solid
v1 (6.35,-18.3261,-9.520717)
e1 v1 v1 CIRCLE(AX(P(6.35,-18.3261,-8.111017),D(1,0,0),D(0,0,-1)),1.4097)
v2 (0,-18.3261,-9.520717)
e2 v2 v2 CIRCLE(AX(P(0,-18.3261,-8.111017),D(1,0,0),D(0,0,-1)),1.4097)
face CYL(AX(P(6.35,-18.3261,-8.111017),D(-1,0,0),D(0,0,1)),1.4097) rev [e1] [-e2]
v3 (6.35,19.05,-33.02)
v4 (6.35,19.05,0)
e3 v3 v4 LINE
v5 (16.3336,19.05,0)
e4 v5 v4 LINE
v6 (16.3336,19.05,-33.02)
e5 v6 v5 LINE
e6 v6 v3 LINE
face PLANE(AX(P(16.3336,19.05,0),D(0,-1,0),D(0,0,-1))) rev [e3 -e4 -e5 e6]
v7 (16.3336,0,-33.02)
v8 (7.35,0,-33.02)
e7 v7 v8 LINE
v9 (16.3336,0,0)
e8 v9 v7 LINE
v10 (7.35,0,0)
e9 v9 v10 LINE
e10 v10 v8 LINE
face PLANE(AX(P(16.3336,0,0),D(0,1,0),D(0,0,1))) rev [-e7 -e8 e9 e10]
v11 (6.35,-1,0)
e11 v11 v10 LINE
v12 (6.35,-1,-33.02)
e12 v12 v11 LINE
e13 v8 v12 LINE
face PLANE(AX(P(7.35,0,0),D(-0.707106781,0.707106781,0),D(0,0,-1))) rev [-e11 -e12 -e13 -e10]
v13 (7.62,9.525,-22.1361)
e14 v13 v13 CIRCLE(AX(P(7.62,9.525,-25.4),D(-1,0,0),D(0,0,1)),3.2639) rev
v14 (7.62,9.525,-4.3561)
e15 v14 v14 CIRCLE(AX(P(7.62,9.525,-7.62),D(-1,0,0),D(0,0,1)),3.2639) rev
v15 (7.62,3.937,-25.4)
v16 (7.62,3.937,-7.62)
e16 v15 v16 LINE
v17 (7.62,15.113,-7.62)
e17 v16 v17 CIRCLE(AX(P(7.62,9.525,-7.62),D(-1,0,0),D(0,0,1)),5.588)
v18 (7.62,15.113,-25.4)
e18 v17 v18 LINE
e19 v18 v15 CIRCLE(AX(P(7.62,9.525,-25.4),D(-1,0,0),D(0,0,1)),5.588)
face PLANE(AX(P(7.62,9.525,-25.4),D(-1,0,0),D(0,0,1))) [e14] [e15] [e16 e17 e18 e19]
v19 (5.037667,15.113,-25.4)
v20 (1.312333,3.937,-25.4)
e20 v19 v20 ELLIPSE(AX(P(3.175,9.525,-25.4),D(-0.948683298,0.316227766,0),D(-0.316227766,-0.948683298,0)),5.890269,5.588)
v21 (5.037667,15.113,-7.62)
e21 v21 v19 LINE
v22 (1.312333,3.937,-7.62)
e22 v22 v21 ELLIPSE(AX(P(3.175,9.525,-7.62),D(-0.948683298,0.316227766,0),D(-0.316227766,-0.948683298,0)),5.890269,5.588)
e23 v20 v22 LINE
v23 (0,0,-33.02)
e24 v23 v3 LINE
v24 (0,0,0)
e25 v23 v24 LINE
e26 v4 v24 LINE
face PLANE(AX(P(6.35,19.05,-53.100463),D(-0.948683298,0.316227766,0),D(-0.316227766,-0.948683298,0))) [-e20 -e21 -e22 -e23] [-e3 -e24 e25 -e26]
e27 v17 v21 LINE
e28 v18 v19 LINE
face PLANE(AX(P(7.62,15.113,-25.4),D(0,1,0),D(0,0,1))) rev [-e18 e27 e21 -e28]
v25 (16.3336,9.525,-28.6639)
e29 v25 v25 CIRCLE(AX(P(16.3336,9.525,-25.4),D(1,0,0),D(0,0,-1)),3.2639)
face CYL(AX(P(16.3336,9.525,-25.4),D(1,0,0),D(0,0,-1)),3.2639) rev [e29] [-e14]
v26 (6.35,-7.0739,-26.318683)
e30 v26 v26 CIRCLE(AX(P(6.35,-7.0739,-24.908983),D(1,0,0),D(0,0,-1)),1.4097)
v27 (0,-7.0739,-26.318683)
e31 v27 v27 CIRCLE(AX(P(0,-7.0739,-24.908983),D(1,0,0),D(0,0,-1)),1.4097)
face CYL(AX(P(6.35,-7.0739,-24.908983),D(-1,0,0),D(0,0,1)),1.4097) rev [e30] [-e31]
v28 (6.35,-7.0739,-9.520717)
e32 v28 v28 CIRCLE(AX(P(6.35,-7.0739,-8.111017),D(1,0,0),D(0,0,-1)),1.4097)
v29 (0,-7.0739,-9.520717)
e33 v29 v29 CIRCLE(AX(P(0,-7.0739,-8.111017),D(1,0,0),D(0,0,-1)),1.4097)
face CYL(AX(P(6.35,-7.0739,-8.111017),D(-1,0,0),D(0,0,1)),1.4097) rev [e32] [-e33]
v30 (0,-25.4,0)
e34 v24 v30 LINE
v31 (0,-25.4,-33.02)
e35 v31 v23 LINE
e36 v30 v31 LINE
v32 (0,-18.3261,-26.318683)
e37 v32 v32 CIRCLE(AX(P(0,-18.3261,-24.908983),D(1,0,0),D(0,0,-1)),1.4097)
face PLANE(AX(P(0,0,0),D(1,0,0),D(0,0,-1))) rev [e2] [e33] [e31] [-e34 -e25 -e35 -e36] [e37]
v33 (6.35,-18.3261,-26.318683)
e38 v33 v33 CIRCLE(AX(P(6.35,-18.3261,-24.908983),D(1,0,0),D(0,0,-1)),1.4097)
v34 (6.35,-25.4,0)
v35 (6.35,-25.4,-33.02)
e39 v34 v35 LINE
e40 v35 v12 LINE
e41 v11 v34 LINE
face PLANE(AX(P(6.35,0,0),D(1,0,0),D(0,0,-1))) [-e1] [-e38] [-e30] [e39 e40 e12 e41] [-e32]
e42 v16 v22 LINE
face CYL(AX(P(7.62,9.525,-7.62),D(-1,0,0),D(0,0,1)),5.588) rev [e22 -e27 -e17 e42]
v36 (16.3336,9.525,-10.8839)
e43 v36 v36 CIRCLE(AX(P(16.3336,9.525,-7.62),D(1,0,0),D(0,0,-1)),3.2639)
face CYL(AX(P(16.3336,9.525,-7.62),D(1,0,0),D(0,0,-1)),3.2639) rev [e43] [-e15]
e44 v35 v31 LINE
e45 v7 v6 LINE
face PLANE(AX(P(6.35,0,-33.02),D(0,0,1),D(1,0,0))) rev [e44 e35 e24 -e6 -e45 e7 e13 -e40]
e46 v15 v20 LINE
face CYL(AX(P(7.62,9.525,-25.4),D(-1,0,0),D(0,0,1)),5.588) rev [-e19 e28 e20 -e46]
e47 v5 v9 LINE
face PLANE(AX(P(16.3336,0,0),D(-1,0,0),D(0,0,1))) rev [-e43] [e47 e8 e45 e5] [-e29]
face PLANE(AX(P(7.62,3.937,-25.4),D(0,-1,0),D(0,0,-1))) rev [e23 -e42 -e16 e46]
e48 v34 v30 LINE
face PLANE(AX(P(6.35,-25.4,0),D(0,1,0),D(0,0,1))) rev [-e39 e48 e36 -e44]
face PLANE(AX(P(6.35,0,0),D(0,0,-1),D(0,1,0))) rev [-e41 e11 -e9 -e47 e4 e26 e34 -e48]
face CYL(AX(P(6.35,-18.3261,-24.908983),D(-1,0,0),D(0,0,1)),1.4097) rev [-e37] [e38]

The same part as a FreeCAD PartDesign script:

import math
import FreeCAD as App
import Part
import Sketcher
from FreeCAD import Vector
Q = App.Units.Quantity


def edges_at(feature, points):
    """Names of the edges that pass closest to the given points."""
    edges = feature.Shape.Edges
    near = lambda p: min(range(len(edges)), key=lambda i: edges[i].distToShape(Part.Vertex(*p))[0])
    return sorted({f"Edge{near(p) + 1}" for p in points})

doc = App.newDocument("Part")
body = doc.addObject("PartDesign::Body", "Body")

sketch1 = body.newObject("Sketcher::SketchObject", "Sketch")
sketch1.AttachmentSupport = (doc.getObject("YZ_Plane"), [""])
sketch1.MapMode = "FlatFace"
sketch1.addGeometry(Part.LineSegment(Vector(0, 0, 0), Vector(-25.4, 0, 0)), False)
sketch1.addGeometry(Part.LineSegment(Vector(-25.4, 0, 0), Vector(-25.4, -33.02, 0)), False)
sketch1.addGeometry(Part.LineSegment(Vector(-25.4, -33.02, 0), Vector(0, -33.02, 0)), False)
sketch1.addGeometry(Part.LineSegment(Vector(0, -33.02, 0), Vector(0, 0, 0)), False)
sketch1.addGeometry(Part.Circle(Vector(-18.3261, -8.111017, 0), Vector(0, 0, 1), 1.4097), False)
sketch1.addGeometry(Part.Circle(Vector(-18.3261, -24.908983, 0), Vector(0, 0, 1), 1.4097), False)
sketch1.addGeometry(Part.Circle(Vector(-7.0739, -8.111017, 0), Vector(0, 0, 1), 1.4097), False)
sketch1.addGeometry(Part.Circle(Vector(-7.0739, -24.908983, 0), Vector(0, 0, 1), 1.4097), False)
sketch1.addConstraint(Sketcher.Constraint("Coincident", 0, 2, 1, 1))
sketch1.addConstraint(Sketcher.Constraint("Coincident", 1, 2, 2, 1))
sketch1.addConstraint(Sketcher.Constraint("Coincident", 2, 2, 3, 1))
sketch1.addConstraint(Sketcher.Constraint("Coincident", 3, 2, 0, 1))
sketch1.addConstraint(Sketcher.Constraint("Horizontal", 0))
sketch1.addConstraint(Sketcher.Constraint("Vertical", 1))
sketch1.addConstraint(Sketcher.Constraint("Horizontal", 2))
sketch1.addConstraint(Sketcher.Constraint("Vertical", 3))
sketch1.addConstraint(Sketcher.Constraint("Coincident", 3, 2, -1, 1))
sketch1.addConstraint(Sketcher.Constraint("Equal", 4, 5))
sketch1.addConstraint(Sketcher.Constraint("Equal", 5, 6))
sketch1.addConstraint(Sketcher.Constraint("Equal", 6, 7))
sketch1.addConstraint(Sketcher.Constraint("Horizontal", 4, 3, 6, 3))
sketch1.addConstraint(Sketcher.Constraint("Horizontal", 5, 3, 7, 3))
sketch1.addConstraint(Sketcher.Constraint("Vertical", 4, 3, 5, 3))
sketch1.addConstraint(Sketcher.Constraint("Vertical", 6, 3, 7, 3))
sketch1.addConstraint(Sketcher.Constraint("DistanceX", 0, 2, 0, 1, Q("1 in")))
sketch1.addConstraint(Sketcher.Constraint("Diameter", 4, Q("0.111 in")))
sketch1.addConstraint(Sketcher.Constraint("DistanceY", 1, 2, 1, 1, Q("1.3 in")))
sketch1.addConstraint(Sketcher.Constraint("DistanceX", 4, 3, 6, 3, Q("0.443 in")))
sketch1.addConstraint(Sketcher.Constraint("DistanceX", 4, 3, -1, 1, Q("0.7215 in")))
sketch1.addConstraint(Sketcher.Constraint("DistanceY", 4, 3, -1, 1, 8.111017))
sketch1.addConstraint(Sketcher.Constraint("DistanceY", 5, 3, -1, 1, 24.908983))
pad1 = body.newObject("PartDesign::Pad", "Pad")
pad1.Profile = sketch1
pad1.Length = Q("0.25 in")
body2 = doc.addObject("PartDesign::Body", "Body001")

sketch2 = body2.newObject("Sketcher::SketchObject", "Sketch001")
sketch2.AttachmentSupport = (doc.getObject("YZ_Plane001"), [""])
sketch2.MapMode = "FlatFace"
sketch2.AttachmentOffset = App.Placement(Vector(0, 0, 0.25 * 25.4), App.Rotation())
sketch2.addGeometry(Part.LineSegment(Vector(19.05, 0, 0), Vector(0, 0, 0)), False)
sketch2.addGeometry(Part.LineSegment(Vector(0, 0, 0), Vector(0, -33.02, 0)), False)
sketch2.addGeometry(Part.LineSegment(Vector(0, -33.02, 0), Vector(19.05, -33.02, 0)), False)
sketch2.addGeometry(Part.LineSegment(Vector(19.05, -33.02, 0), Vector(19.05, 0, 0)), False)
sketch2.addConstraint(Sketcher.Constraint("Coincident", 0, 2, 1, 1))
sketch2.addConstraint(Sketcher.Constraint("Coincident", 1, 2, 2, 1))
sketch2.addConstraint(Sketcher.Constraint("Coincident", 2, 2, 3, 1))
sketch2.addConstraint(Sketcher.Constraint("Coincident", 3, 2, 0, 1))
sketch2.addConstraint(Sketcher.Constraint("Horizontal", 0))
sketch2.addConstraint(Sketcher.Constraint("Vertical", 1))
sketch2.addConstraint(Sketcher.Constraint("Horizontal", 2))
sketch2.addConstraint(Sketcher.Constraint("Vertical", 3))
sketch2.addConstraint(Sketcher.Constraint("Coincident", 0, 2, -1, 1))
sketch2.addConstraint(Sketcher.Constraint("DistanceY", 1, 2, 1, 1, Q("1.3 in")))
sketch2.addConstraint(Sketcher.Constraint("DistanceX", 0, 2, 0, 1, Q("0.75 in")))
pad2 = body2.newObject("PartDesign::Pad", "Pad001")
pad2.Profile = sketch2
pad2.Length = 9.9836
body.AllowCompound = True
doc.recompute()

boolean = body.newObject("PartDesign::Boolean", "Boolean")
boolean.Type = "Fuse"
boolean.addObjects([body2])

sketch3 = body.newObject("Sketcher::SketchObject", "Sketch002")
sketch3.AttachmentSupport = (doc.getObject("XY_Plane"), [""])
sketch3.MapMode = "FlatFace"
sketch3.addGeometry(Part.LineSegment(Vector(6.35, 19.05, 0), Vector(0, 0, 0)), False)
sketch3.addGeometry(Part.LineSegment(Vector(0, 0, 0), Vector(6.35, 0, 0)), False)
sketch3.addGeometry(Part.LineSegment(Vector(6.35, 0, 0), Vector(6.35, 19.05, 0)), False)
sketch3.addConstraint(Sketcher.Constraint("Coincident", 0, 2, 1, 1))
sketch3.addConstraint(Sketcher.Constraint("Coincident", 1, 2, 2, 1))
sketch3.addConstraint(Sketcher.Constraint("Coincident", 2, 2, 0, 1))
sketch3.addConstraint(Sketcher.Constraint("Horizontal", 1))
sketch3.addConstraint(Sketcher.Constraint("Vertical", 2))
sketch3.addConstraint(Sketcher.Constraint("Coincident", 0, 2, -1, 1))
sketch3.addConstraint(Sketcher.Constraint("DistanceX", 1, 1, 1, 2, Q("0.25 in")))
sketch3.addConstraint(Sketcher.Constraint("DistanceY", 2, 1, 2, 2, Q("0.75 in")))
pad3 = body.newObject("PartDesign::Pad", "Pad002")
pad3.Profile = sketch3
pad3.Length = Q("1.3 in")
pad3.Reversed = True

sketch4 = body.newObject("Sketcher::SketchObject", "Sketch003")
sketch4.AttachmentSupport = (doc.getObject("YZ_Plane"), [""])
sketch4.MapMode = "FlatFace"
sketch4.AttachmentOffset = App.Placement(Vector(0, 0, 16.3336), App.Rotation())
sketch4.addGeometry(Part.Circle(Vector(9.525, -7.62, 0), Vector(0, 0, 1), 3.2639), False)
sketch4.addGeometry(Part.Circle(Vector(9.525, -25.4, 0), Vector(0, 0, 1), 3.2639), False)
sketch4.addConstraint(Sketcher.Constraint("Equal", 0, 1))
sketch4.addConstraint(Sketcher.Constraint("Vertical", 0, 3, 1, 3))
sketch4.addConstraint(Sketcher.Constraint("Diameter", 0, Q("0.257 in")))
sketch4.addConstraint(Sketcher.Constraint("DistanceY", 1, 3, -1, 1, Q("1 in")))
sketch4.addConstraint(Sketcher.Constraint("DistanceY", 0, 3, -1, 1, Q("0.3 in")))
sketch4.addConstraint(Sketcher.Constraint("DistanceX", -1, 1, 0, 3, Q("0.375 in")))
doc.recompute()
hole = body.newObject("PartDesign::Hole", "Hole")
hole.Profile = sketch4
hole.ThreadType = "None"
hole.Diameter = Q("0.257 in")
hole.DepthType = "ThroughAll"

sketch5 = body.newObject("Sketcher::SketchObject", "Sketch004")
sketch5.AttachmentSupport = (doc.getObject("YZ_Plane"), [""])
sketch5.MapMode = "FlatFace"
sketch5.addGeometry(Part.LineSegment(Vector(15.113, -7.62, 0), Vector(15.113, -25.4, 0)), False)
sketch5.addGeometry(Part.ArcOfCircle(Part.Circle(Vector(9.525, -25.4, 0), Vector(0, 0, 1), 5.588), math.radians(180), math.radians(360)), False)
sketch5.addGeometry(Part.LineSegment(Vector(3.937, -25.4, 0), Vector(3.937, -7.62, 0)), False)
sketch5.addGeometry(Part.ArcOfCircle(Part.Circle(Vector(9.525, -7.62, 0), Vector(0, 0, 1), 5.588), math.radians(0), math.radians(180)), False)
sketch5.addConstraint(Sketcher.Constraint("Tangent", 0, 2, 1, 2))
sketch5.addConstraint(Sketcher.Constraint("Tangent", 1, 1, 2, 1))
sketch5.addConstraint(Sketcher.Constraint("Tangent", 2, 2, 3, 2))
sketch5.addConstraint(Sketcher.Constraint("Tangent", 3, 1, 0, 1))
sketch5.addConstraint(Sketcher.Constraint("Vertical", 0))
sketch5.addConstraint(Sketcher.Constraint("Vertical", 2))
sketch5.addConstraint(Sketcher.Constraint("Radius", 1, Q("0.22 in")))
sketch5.addConstraint(Sketcher.Constraint("DistanceY", 0, 2, 0, 1, Q("0.7 in")))
sketch5.addConstraint(Sketcher.Constraint("DistanceY", 1, 3, -1, 1, Q("1 in")))
sketch5.addConstraint(Sketcher.Constraint("DistanceX", -1, 1, 1, 3, Q("0.375 in")))
pocket1 = body.newObject("PartDesign::Pocket", "Pocket")
pocket1.Profile = sketch5
pocket1.Length = Q("0.3 in")
pocket1.Reversed = True
doc.recompute()

chamfer = body.newObject("PartDesign::Chamfer", "Chamfer")
chamfer.Base = (pocket1, edges_at(pocket1, [(6.35, 0, -16.51)]))
chamfer.Size = 1

doc.recompute()
